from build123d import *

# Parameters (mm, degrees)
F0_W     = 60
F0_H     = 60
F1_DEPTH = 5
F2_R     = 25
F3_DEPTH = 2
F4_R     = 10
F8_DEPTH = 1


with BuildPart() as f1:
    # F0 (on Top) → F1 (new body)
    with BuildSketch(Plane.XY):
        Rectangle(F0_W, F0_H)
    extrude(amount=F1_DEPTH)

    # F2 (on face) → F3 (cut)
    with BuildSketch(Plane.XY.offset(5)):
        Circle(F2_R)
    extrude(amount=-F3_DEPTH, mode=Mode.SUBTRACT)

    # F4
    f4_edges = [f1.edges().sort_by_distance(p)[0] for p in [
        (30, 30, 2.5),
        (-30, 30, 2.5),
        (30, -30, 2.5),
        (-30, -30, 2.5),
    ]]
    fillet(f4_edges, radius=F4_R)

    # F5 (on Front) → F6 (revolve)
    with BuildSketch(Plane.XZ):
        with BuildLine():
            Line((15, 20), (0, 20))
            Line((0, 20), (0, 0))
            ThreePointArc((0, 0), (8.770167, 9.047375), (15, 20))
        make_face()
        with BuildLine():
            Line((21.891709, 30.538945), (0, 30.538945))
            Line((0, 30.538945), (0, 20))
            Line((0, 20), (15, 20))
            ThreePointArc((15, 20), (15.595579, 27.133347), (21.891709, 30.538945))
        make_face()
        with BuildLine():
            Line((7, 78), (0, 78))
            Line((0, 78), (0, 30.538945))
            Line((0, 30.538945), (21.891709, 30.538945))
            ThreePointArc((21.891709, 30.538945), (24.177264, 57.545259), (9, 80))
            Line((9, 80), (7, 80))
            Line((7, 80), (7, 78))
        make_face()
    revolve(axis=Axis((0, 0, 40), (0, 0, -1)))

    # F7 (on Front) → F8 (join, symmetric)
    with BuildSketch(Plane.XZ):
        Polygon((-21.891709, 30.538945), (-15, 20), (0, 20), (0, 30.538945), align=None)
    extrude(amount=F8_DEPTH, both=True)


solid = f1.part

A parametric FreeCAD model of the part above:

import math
import FreeCAD as App
import Part
import Sketcher
from FreeCAD import Vector
Q = App.Units.Quantity


def edges_at(feature, points):
    """Names of the edges that pass closest to the given points."""
    edges = feature.Shape.Edges
    near = lambda p: min(range(len(edges)), key=lambda i: edges[i].distToShape(Part.Vertex(*p))[0])
    return sorted({f"Edge{near(p) + 1}" for p in points})

doc = App.newDocument("Part")
body = doc.addObject("PartDesign::Body", "Body")

# Sketch on XY plane
sketch1 = doc.addObject("Sketcher::SketchObject", "Sketch")
body.addObject(sketch1)
sketch1.AttachmentSupport = (doc.XY_Plane, [""])
sketch1.MapMode = "FlatFace"
sketch1.addGeometry(Part.LineSegment(Vector(-30, 30, 0), Vector(-30, -30, 0)), False)
sketch1.addGeometry(Part.LineSegment(Vector(-30, -30, 0), Vector(30, -30, 0)), False)
sketch1.addGeometry(Part.LineSegment(Vector(30, -30, 0), Vector(30, 30, 0)), False)
sketch1.addGeometry(Part.LineSegment(Vector(30, 30, 0), Vector(-30, 30, 0)), False)
sketch1.addConstraint(Sketcher.Constraint("Coincident", 0, 2, 1, 1))
sketch1.addConstraint(Sketcher.Constraint("Coincident", 1, 2, 2, 1))
sketch1.addConstraint(Sketcher.Constraint("Coincident", 2, 2, 3, 1))
sketch1.addConstraint(Sketcher.Constraint("Coincident", 3, 2, 0, 1))
sketch1.addConstraint(Sketcher.Constraint("Vertical", 0))
sketch1.addConstraint(Sketcher.Constraint("Horizontal", 1))
sketch1.addConstraint(Sketcher.Constraint("Vertical", 2))
sketch1.addConstraint(Sketcher.Constraint("Horizontal", 3))
sketch1.addConstraint(Sketcher.Constraint("Symmetric", 0, 2, 2, 2, -1, 1))
sketch1.addConstraint(Sketcher.Constraint("Equal", 3, 0))
sketch1.addConstraint(Sketcher.Constraint("DistanceX", 1, 1, 1, 2, Q("60 mm")))
pad1 = doc.addObject("PartDesign::Pad", "Pad")
body.addObject(pad1)
pad1.Profile = sketch1
pad1.Length = 5

# Sketch on XY plane
sketch2 = doc.addObject("Sketcher::SketchObject", "Sketch001")
body.addObject(sketch2)
sketch2.AttachmentSupport = (doc.XY_Plane, [""])
sketch2.MapMode = "FlatFace"
sketch2.AttachmentOffset = App.Placement(Vector(0, 0, 5), App.Rotation())
sketch2.addGeometry(Part.Circle(Vector(0, 0, 0), Vector(0, 0, 1), 25), False)
sketch2.addConstraint(Sketcher.Constraint("Coincident", 0, 3, -1, 1))
sketch2.addConstraint(Sketcher.Constraint("Diameter", 0, Q("50 mm")))
pocket1 = doc.addObject("PartDesign::Pocket", "Pocket")
body.addObject(pocket1)
pocket1.Profile = sketch2
pocket1.Length = 2
doc.recompute()

fillet = doc.addObject("PartDesign::Fillet", "Fillet")
body.addObject(fillet)
fillet.Base = (pocket1, edges_at(pocket1, [
    (30, 30, 2.5),
    (-30, 30, 2.5),
    (30, -30, 2.5),
    (-30, -30, 2.5),
]))
fillet.Radius = 10

# Sketch on XZ plane
sketch3 = doc.addObject("Sketcher::SketchObject", "Sketch002")
body.addObject(sketch3)
sketch3.AttachmentSupport = (doc.XZ_Plane, [""])
sketch3.MapMode = "FlatFace"
sketch3.addGeometry(Part.ArcOfCircle(Part.Circle(Vector(-31.229823, 39.047367, 0), Vector(0, 0, 1), 49.999987), math.radians(-51.347414), math.radians(-22.392382)), False)
sketch3.addGeometry(Part.ArcOfCircle(Part.Circle(Vector(21.891709, 23.016133, 0), Vector(0, 0, 1), 7.522812), math.radians(90), math.radians(203.636424)), False)
sketch3.addGeometry(Part.ArcOfCircle(Part.Circle(Vector(-15.211365, 47.278863, 0), Vector(0, 0, 1), 40.704582), math.radians(-24.283628), math.radians(53.501134)), False)
sketch3.addGeometry(Part.LineSegment(Vector(9, 80, 0), Vector(7, 80, 0)), False)
sketch3.addGeometry(Part.LineSegment(Vector(7, 80, 0), Vector(7, 78, 0)), False)
sketch3.addGeometry(Part.LineSegment(Vector(7, 78, 0), Vector(0, 78, 0)), False)
sketch3.addGeometry(Part.LineSegment(Vector(0, 78, 0), Vector(0, 0, 0)), False)
sketch3.addConstraint(Sketcher.Constraint("Coincident", 0, 2, 1, 2))
sketch3.addConstraint(Sketcher.Constraint("Coincident", 1, 1, 2, 1))
sketch3.addConstraint(Sketcher.Constraint("Coincident", 2, 2, 3, 1))
sketch3.addConstraint(Sketcher.Constraint("Coincident", 3, 2, 4, 1))
sketch3.addConstraint(Sketcher.Constraint("Coincident", 4, 2, 5, 1))
sketch3.addConstraint(Sketcher.Constraint("Coincident", 5, 2, 6, 1))
sketch3.addConstraint(Sketcher.Constraint("Coincident", 6, 2, 0, 1))
sketch3.addConstraint(Sketcher.Constraint("Horizontal", 3))
sketch3.addConstraint(Sketcher.Constraint("Vertical", 4))
sketch3.addConstraint(Sketcher.Constraint("Horizontal", 5))
sketch3.addConstraint(Sketcher.Constraint("Vertical", 6))
sketch3.addConstraint(Sketcher.Constraint("Coincident", 6, 2, -1, 1))
sketch3.addConstraint(Sketcher.Constraint("Equal", 3, 4))
sketch3.addConstraint(Sketcher.Constraint("DistanceX", 3, 2, 3, 1, Q("2 mm")))
sketch3.addConstraint(Sketcher.Constraint("DistanceX", 5, 2, 5, 1, Q("7 mm")))
sketch3.addConstraint(Sketcher.Constraint("DistanceY", 6, 2, 6, 1, Q("78 mm")))
sketch3.addConstraint(Sketcher.Constraint("DistanceX", -1, 1, 0, 2, Q("15 mm")))
sketch3.addConstraint(Sketcher.Constraint("DistanceY", -1, 1, 0, 2, Q("20 mm")))
sketch3.addConstraint(Sketcher.Constraint("Radius", 2, Q("40.704582 mm")))
sketch3.addConstraint(Sketcher.Constraint("Radius", 0, Q("49.999987 mm")))
sketch3.addConstraint(Sketcher.Constraint("Radius", 1, Q("7.522812 mm")))
sketch3.addConstraint(Sketcher.Constraint("DistanceX", -1, 1, 1, 3, Q("21.891709 mm")))
sketch3.addConstraint(Sketcher.Constraint("DistanceX", -1, 1, 1, 1, Q("21.891709 mm")))
revolution = doc.addObject("PartDesign::Revolution", "Revolution")
body.addObject(revolution)
revolution.Profile = sketch3
revolution.ReferenceAxis = (sketch3, ["V_Axis"])
revolution.Angle = 360

# Sketch on XZ plane
sketch4 = doc.addObject("Sketcher::SketchObject", "Sketch003")
body.addObject(sketch4)
sketch4.AttachmentSupport = (doc.XZ_Plane, [""])
sketch4.MapMode = "FlatFace"
sketch4.addGeometry(Part.LineSegment(Vector(-21.891709, 30.538945, 0), Vector(-15, 20, 0)), False)
sketch4.addGeometry(Part.LineSegment(Vector(-15, 20, 0), Vector(0, 20, 0)), False)
sketch4.addGeometry(Part.LineSegment(Vector(0, 20, 0), Vector(0, 30.538945, 0)), False)
sketch4.addGeometry(Part.LineSegment(Vector(0, 30.538945, 0), Vector(-21.891709, 30.538945, 0)), False)
sketch4.addConstraint(Sketcher.Constraint("Coincident", 0, 2, 1, 1))
sketch4.addConstraint(Sketcher.Constraint("Coincident", 1, 2, 2, 1))
sketch4.addConstraint(Sketcher.Constraint("Coincident", 2, 2, 3, 1))
sketch4.addConstraint(Sketcher.Constraint("Coincident", 3, 2, 0, 1))
sketch4.addConstraint(Sketcher.Constraint("Horizontal", 1))
sketch4.addConstraint(Sketcher.Constraint("Vertical", 2))
sketch4.addConstraint(Sketcher.Constraint("Horizontal", 3))
sketch4.addConstraint(Sketcher.Constraint("PointOnObject", 1, 2, -2))
sketch4.addConstraint(Sketcher.Constraint("DistanceX", 1, 1, 1, 2, Q("15 mm")))
sketch4.addConstraint(Sketcher.Constraint("DistanceY", -1, 1, 0, 2, Q("20 mm")))
sketch4.addConstraint(Sketcher.Constraint("DistanceX", 3, 2, 3, 1, Q("21.891709 mm")))
sketch4.addConstraint(Sketcher.Constraint("Distance", 0, Q("12.59226 mm")))
pad2 = doc.addObject("PartDesign::Pad", "Pad001")
body.addObject(pad2)
pad2.Profile = sketch4
pad2.Length = 2
pad2.Midplane = True

doc.recompute()
